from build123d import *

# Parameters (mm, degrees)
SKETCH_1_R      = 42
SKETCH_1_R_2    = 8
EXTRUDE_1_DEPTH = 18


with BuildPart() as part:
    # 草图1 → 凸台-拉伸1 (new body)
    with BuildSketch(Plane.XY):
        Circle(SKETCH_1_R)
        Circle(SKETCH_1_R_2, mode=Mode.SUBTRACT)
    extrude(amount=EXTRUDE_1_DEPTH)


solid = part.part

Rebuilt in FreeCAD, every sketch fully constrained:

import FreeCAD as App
import Part
import Sketcher
from FreeCAD import Vector

doc = App.newDocument("Part")
body = doc.addObject("PartDesign::Body", "Body")

sketch1 = doc.addObject("Sketcher::SketchObject", "Sketch")
body.addObject(sketch1)
sketch1.AttachmentSupport = (doc.XY_Plane, [""])
sketch1.MapMode = "FlatFace"
sketch1.addGeometry([
    Part.Circle(Vector(0, 0, 0), Vector(0, 0, 1), 42),
    Part.Circle(Vector(0, 0, 0), Vector(0, 0, 1), 8),
], False)
sketch1.addConstraint([
    Sketcher.Constraint("Coincident", 0, 3, -1, 1),
    Sketcher.Constraint("Coincident", 1, 3, -1, 1),
    Sketcher.Constraint("Diameter", 0, 84.0),
    Sketcher.Constraint("Diameter", 1, 16.0),
])
pad1 = doc.addObject("PartDesign::Pad", "Pad")
body.addObject(pad1)
pad1.Profile = sketch1
pad1.Length = 18

doc.recompute()
